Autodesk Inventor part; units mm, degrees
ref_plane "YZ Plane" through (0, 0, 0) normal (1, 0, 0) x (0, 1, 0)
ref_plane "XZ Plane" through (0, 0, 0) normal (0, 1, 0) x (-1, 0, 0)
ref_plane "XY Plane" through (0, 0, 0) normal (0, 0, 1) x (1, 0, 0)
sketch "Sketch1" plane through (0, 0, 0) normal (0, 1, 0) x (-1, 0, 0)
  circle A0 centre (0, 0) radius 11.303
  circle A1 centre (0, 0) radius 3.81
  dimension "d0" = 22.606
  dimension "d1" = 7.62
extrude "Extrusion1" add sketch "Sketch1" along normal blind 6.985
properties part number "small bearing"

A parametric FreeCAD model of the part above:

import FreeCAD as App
import Part
import Sketcher
from FreeCAD import Vector
Q = App.Units.Quantity

doc = App.newDocument("Part")
body = doc.addObject("PartDesign::Body", "Body")

sketch1 = body.newObject("Sketcher::SketchObject", "Sketch")
sketch1.AttachmentSupport = (doc.getObject("XZ_Plane"), [""])
sketch1.MapMode = "FlatFace"
sketch1.addGeometry([
    Part.Circle(Vector(0, 0, 0), Vector(0, 0, 1), 11.3),
    Part.Circle(Vector(0, 0, 0), Vector(0, 0, 1), 3.8),
], False)
sketch1.addConstraint([
    Sketcher.Constraint("Coincident", 0, 3, -1, 1),
    Sketcher.Constraint("Coincident", 1, 3, -1, 1),
    Sketcher.Constraint("Diameter", 1, Q("0.3 in")),
    Sketcher.Constraint("Diameter", 0, Q("0.89 in")),
])
pad1 = body.newObject("PartDesign::Pad", "Pad")
pad1.Profile = sketch1
pad1.Length = Q("0.275 in")
pad1.Reversed = True

doc.recompute()
